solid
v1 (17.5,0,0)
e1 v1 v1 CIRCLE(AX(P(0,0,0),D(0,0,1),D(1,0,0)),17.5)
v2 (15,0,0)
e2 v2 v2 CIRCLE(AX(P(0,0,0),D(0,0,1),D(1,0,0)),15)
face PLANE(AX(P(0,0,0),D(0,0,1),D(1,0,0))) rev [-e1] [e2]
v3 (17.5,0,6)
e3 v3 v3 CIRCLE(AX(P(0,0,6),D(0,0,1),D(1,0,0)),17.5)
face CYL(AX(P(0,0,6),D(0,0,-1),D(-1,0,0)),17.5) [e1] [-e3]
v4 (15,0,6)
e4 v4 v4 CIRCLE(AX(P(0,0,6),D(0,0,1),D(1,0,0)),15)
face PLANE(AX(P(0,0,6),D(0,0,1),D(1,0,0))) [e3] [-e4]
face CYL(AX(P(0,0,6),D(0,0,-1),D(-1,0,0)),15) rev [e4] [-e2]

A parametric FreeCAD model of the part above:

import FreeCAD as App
import Part
import Sketcher

V = App.Vector

doc = App.newDocument("Part")
body = doc.addObject("PartDesign::Body", "Body")

# Sketch on XY plane
sketch1 = body.newObject("Sketcher::SketchObject", "Sketch")
sketch1.AttachmentSupport = (doc.getObject("XY_Plane"), [""])
sketch1.MapMode = "FlatFace"
sketch1.addGeometry([
    Part.Circle(V(0, 0, 0), V(0, 0, 1), 17.5),
    Part.Circle(V(0, 0, 0), V(0, 0, 1), 15),
], False)
sketch1.addConstraint([
    Sketcher.Constraint("Coincident", 0, 3, -1, 1),
    Sketcher.Constraint("Coincident", 1, 3, -1, 1),
    Sketcher.Constraint("Diameter", 0, 35.0),
    Sketcher.Constraint("Diameter", 1, 30.0),
])
pad1 = body.newObject("PartDesign::Pad", "Pad")
pad1.Profile = sketch1
pad1.Length = 6

doc.recompute()
